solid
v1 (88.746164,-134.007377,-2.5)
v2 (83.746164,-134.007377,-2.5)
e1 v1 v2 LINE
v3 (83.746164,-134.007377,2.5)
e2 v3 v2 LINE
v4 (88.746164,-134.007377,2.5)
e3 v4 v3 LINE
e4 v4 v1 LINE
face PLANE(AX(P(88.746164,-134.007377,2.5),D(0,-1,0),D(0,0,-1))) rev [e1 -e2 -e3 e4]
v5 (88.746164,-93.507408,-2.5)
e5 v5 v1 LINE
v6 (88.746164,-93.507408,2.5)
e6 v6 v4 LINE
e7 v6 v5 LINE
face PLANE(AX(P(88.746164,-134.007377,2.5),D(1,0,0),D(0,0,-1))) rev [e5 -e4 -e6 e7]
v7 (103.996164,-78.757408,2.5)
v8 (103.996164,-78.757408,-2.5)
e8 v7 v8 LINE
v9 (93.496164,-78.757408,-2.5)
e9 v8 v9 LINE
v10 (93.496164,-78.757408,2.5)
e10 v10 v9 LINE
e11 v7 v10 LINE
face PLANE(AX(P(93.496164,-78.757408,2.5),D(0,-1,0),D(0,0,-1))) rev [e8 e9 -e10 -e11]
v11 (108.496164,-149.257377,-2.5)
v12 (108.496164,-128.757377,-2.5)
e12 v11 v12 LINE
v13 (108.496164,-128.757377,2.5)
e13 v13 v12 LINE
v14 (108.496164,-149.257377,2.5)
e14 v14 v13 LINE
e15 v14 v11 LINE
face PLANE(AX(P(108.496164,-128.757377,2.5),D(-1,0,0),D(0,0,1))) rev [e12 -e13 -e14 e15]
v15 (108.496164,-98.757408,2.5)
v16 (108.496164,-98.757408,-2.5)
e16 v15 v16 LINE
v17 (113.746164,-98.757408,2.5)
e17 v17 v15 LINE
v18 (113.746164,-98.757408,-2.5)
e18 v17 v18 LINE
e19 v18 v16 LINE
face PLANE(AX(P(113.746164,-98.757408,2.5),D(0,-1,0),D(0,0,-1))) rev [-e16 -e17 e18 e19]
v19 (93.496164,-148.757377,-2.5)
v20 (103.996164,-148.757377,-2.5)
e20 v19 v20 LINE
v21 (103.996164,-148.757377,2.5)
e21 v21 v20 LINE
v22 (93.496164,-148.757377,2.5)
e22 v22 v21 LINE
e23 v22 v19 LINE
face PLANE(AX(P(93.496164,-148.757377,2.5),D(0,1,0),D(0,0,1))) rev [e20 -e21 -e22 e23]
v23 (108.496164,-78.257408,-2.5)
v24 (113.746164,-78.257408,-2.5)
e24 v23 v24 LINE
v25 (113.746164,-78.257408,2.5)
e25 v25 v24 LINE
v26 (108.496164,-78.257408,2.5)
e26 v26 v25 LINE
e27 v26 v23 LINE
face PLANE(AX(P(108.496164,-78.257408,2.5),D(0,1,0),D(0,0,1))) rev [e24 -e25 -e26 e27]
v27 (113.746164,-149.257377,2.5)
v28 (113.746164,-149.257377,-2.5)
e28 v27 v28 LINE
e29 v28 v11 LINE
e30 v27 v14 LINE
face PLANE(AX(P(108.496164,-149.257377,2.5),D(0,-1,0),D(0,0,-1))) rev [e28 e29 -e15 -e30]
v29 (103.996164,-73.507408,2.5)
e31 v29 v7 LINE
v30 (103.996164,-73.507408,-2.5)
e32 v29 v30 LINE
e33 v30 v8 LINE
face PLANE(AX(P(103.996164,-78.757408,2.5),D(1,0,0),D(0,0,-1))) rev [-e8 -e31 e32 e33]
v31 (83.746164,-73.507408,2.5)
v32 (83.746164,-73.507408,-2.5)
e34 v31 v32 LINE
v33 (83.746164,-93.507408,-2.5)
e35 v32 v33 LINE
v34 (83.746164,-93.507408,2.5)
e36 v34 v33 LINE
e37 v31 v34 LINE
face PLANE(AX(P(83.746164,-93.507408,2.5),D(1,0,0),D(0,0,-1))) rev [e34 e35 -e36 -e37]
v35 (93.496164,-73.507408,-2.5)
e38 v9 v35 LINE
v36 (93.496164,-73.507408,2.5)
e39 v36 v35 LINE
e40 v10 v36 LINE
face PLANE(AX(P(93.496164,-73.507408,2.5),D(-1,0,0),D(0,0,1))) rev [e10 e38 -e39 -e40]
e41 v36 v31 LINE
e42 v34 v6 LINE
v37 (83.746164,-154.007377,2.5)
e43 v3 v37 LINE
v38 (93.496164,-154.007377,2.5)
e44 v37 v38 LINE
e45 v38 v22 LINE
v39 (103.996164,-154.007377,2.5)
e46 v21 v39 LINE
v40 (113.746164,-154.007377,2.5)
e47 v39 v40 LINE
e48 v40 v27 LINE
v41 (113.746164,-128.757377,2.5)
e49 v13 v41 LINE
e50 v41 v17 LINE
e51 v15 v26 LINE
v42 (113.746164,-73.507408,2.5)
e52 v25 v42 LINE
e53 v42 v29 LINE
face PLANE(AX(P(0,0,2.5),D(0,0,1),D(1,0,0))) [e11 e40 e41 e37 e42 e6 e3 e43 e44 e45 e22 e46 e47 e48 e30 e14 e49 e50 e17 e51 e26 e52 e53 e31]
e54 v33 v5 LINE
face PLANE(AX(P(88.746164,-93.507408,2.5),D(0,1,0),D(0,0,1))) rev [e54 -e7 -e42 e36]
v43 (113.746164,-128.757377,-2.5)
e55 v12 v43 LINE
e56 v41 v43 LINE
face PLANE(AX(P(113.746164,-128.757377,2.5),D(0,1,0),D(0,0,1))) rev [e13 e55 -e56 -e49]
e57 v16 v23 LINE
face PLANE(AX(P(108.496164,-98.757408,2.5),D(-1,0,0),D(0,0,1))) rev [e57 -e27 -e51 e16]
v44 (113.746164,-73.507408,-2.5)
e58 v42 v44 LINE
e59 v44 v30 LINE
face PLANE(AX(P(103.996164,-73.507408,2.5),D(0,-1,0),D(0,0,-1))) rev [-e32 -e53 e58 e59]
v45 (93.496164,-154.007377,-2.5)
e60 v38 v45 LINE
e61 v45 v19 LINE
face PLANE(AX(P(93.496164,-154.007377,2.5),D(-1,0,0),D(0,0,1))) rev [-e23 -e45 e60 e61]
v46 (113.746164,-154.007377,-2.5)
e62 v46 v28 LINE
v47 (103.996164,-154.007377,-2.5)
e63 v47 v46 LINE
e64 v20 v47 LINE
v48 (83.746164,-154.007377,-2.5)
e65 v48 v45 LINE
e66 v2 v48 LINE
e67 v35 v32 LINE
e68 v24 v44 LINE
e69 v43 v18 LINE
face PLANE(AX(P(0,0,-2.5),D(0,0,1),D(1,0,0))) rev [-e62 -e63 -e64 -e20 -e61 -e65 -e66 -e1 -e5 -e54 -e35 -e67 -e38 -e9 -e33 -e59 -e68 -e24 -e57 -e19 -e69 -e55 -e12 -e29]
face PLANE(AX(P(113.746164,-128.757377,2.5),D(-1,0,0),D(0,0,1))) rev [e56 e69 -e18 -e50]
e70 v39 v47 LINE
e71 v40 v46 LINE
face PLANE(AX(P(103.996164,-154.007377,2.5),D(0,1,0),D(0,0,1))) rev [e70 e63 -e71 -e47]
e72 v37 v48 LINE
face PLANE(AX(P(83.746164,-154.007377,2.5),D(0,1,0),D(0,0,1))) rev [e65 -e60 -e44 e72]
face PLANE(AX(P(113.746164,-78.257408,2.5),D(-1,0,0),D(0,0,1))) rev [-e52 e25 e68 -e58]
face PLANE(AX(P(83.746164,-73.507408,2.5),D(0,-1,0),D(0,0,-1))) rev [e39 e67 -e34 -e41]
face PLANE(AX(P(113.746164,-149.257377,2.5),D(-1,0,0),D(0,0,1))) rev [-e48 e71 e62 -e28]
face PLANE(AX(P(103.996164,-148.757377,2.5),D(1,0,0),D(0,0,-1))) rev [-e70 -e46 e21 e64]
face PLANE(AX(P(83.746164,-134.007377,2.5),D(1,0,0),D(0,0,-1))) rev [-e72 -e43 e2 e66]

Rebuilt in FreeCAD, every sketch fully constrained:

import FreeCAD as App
import Part
import Sketcher

V = App.Vector


def add_polygon(sketch, points):
    """Adds a closed chain of lines whose ends are joined by coincident constraints."""
    first, n = sketch.GeometryCount, len(points)
    for a, b in zip(points, points[1:] + points[:1]):
        sketch.addGeometry(Part.LineSegment(App.Vector(*a, 0), App.Vector(*b, 0)), False)
    for i in range(n):
        sketch.addConstraint(Sketcher.Constraint("Coincident", first + i, 2, first + (i + 1) % n, 1))

doc = App.newDocument("Part")
params = doc.addObject("Spreadsheet::Sheet", "Params")
for row, (alias, value) in enumerate([
    ("sketch1_width", "5 mm"),
    ("sketch1_height", "20 mm"),
    ("sketch1_width2", "10.5 mm"),
    ("sketch1_height2", "20.5 mm"),
    ("pad1_length", "5 mm"),
], start=1):
    params.set(f"A{row}", alias)
    params.set(f"B{row}", "=" + value)
    params.setAlias(f"B{row}", alias)

body = doc.addObject("PartDesign::Body", "Body")

# Sketch on XY plane
sketch1 = body.newObject("Sketcher::SketchObject", "Sketch")
sketch1.AttachmentSupport = (doc.getObject("XY_Plane"), [""])
sketch1.MapMode = "FlatFace"
add_polygon(sketch1, [(113.746164, -98.757408), (108.496164, -98.757408), (108.496164, -78.257408), (113.746164, -78.257408), (113.746164, -73.507408), (103.996164, -73.507408), (103.996164, -78.757408), (93.496164, -78.757408), (93.496164, -73.507408), (83.746164, -73.507408), (83.746164, -93.507408), (88.746164, -93.507408), (88.746164, -134.007377), (83.746164, -134.007377), (83.746164, -154.007377), (93.496164, -154.007377), (93.496164, -148.757377), (103.996164, -148.757377), (103.996164, -154.007377), (113.746164, -154.007377), (113.746164, -149.257377), (108.496164, -149.257377), (108.496164, -128.757377), (113.746164, -128.757377)])  # lines 0-23
sketch1.addConstraint([
    Sketcher.Constraint("Horizontal", 0),
    Sketcher.Constraint("Vertical", 1),
    Sketcher.Constraint("Horizontal", 2),
    Sketcher.Constraint("Vertical", 3),
    Sketcher.Constraint("Horizontal", 4),
    Sketcher.Constraint("Vertical", 5),
    Sketcher.Constraint("Horizontal", 6),
    Sketcher.Constraint("Vertical", 7),
    Sketcher.Constraint("Horizontal", 8),
    Sketcher.Constraint("Vertical", 9),
    Sketcher.Constraint("Horizontal", 10),
    Sketcher.Constraint("Vertical", 11),
    Sketcher.Constraint("Horizontal", 12),
    Sketcher.Constraint("Vertical", 13),
    Sketcher.Constraint("Horizontal", 14),
    Sketcher.Constraint("Vertical", 15),
    Sketcher.Constraint("Horizontal", 16),
    Sketcher.Constraint("Vertical", 17),
    Sketcher.Constraint("Horizontal", 18),
    Sketcher.Constraint("Vertical", 19),
    Sketcher.Constraint("Horizontal", 20),
    Sketcher.Constraint("Vertical", 21),
    Sketcher.Constraint("Horizontal", 22),
    Sketcher.Constraint("Vertical", 23),
    Sketcher.Constraint("Horizontal", 4, 2, 7, 2),
    Sketcher.Constraint("Horizontal", 14, 2, 17, 2),
    Sketcher.Constraint("Vertical", 9, 2, 12, 2),
    Sketcher.Constraint("Vertical", 7, 2, 14, 2),
    Sketcher.Constraint("Vertical", 5, 2, 16, 2),
    Sketcher.Constraint("Vertical", 3, 2, 18, 2),
    Sketcher.Constraint("Vertical", 1, 2, 20, 2),
    Sketcher.Constraint("Vertical", 19, 2, 22, 2),
    Sketcher.Constraint("Equal", 4, 8),
    Sketcher.Constraint("Equal", 22, 5),
    Sketcher.Constraint("Equal", 9, 13),
    Sketcher.Constraint("Equal", 7, 15),
    Sketcher.Constraint("Equal", 3, 19),
    Sketcher.Constraint("Equal", 1, 21),
    Sketcher.Constraint("DistanceX", 10, 1, 10, 2, 5.0),
    Sketcher.Constraint("DistanceY", 9, 2, 9, 1, 20.0),
    Sketcher.Constraint("DistanceX", 6, 2, 6, 1, 10.5),
    Sketcher.Constraint("DistanceY", 1, 1, 1, 2, 20.5),
    Sketcher.Constraint("DistanceY", 0, 2, 5, 2, 20.0),
    Sketcher.Constraint("DistanceX", 6, 2, 1, 2, 15.0),
    Sketcher.Constraint("DistanceX", 13, 2, 18, 2, 30.0),
    Sketcher.Constraint("DistanceY", 11, 2, 11, 1, 40.499969),
    Sketcher.Constraint("DistanceY", 0, 2, -1, 1, 98.757408),
    Sketcher.Constraint("DistanceX", -1, 1, 0, 2, 108.496164),
])
sketch1.setExpression("Constraints[62]", "Params.sketch1_width")
sketch1.setExpression("Constraints[63]", "Params.sketch1_height")
sketch1.setExpression("Constraints[64]", "Params.sketch1_width2")
sketch1.setExpression("Constraints[65]", "Params.sketch1_height2")
pad1 = body.newObject("PartDesign::Pad", "Pad")
pad1.Profile = sketch1
pad1.setExpression("Length", "Params.pad1_length")
pad1.Midplane = True

doc.recompute()
